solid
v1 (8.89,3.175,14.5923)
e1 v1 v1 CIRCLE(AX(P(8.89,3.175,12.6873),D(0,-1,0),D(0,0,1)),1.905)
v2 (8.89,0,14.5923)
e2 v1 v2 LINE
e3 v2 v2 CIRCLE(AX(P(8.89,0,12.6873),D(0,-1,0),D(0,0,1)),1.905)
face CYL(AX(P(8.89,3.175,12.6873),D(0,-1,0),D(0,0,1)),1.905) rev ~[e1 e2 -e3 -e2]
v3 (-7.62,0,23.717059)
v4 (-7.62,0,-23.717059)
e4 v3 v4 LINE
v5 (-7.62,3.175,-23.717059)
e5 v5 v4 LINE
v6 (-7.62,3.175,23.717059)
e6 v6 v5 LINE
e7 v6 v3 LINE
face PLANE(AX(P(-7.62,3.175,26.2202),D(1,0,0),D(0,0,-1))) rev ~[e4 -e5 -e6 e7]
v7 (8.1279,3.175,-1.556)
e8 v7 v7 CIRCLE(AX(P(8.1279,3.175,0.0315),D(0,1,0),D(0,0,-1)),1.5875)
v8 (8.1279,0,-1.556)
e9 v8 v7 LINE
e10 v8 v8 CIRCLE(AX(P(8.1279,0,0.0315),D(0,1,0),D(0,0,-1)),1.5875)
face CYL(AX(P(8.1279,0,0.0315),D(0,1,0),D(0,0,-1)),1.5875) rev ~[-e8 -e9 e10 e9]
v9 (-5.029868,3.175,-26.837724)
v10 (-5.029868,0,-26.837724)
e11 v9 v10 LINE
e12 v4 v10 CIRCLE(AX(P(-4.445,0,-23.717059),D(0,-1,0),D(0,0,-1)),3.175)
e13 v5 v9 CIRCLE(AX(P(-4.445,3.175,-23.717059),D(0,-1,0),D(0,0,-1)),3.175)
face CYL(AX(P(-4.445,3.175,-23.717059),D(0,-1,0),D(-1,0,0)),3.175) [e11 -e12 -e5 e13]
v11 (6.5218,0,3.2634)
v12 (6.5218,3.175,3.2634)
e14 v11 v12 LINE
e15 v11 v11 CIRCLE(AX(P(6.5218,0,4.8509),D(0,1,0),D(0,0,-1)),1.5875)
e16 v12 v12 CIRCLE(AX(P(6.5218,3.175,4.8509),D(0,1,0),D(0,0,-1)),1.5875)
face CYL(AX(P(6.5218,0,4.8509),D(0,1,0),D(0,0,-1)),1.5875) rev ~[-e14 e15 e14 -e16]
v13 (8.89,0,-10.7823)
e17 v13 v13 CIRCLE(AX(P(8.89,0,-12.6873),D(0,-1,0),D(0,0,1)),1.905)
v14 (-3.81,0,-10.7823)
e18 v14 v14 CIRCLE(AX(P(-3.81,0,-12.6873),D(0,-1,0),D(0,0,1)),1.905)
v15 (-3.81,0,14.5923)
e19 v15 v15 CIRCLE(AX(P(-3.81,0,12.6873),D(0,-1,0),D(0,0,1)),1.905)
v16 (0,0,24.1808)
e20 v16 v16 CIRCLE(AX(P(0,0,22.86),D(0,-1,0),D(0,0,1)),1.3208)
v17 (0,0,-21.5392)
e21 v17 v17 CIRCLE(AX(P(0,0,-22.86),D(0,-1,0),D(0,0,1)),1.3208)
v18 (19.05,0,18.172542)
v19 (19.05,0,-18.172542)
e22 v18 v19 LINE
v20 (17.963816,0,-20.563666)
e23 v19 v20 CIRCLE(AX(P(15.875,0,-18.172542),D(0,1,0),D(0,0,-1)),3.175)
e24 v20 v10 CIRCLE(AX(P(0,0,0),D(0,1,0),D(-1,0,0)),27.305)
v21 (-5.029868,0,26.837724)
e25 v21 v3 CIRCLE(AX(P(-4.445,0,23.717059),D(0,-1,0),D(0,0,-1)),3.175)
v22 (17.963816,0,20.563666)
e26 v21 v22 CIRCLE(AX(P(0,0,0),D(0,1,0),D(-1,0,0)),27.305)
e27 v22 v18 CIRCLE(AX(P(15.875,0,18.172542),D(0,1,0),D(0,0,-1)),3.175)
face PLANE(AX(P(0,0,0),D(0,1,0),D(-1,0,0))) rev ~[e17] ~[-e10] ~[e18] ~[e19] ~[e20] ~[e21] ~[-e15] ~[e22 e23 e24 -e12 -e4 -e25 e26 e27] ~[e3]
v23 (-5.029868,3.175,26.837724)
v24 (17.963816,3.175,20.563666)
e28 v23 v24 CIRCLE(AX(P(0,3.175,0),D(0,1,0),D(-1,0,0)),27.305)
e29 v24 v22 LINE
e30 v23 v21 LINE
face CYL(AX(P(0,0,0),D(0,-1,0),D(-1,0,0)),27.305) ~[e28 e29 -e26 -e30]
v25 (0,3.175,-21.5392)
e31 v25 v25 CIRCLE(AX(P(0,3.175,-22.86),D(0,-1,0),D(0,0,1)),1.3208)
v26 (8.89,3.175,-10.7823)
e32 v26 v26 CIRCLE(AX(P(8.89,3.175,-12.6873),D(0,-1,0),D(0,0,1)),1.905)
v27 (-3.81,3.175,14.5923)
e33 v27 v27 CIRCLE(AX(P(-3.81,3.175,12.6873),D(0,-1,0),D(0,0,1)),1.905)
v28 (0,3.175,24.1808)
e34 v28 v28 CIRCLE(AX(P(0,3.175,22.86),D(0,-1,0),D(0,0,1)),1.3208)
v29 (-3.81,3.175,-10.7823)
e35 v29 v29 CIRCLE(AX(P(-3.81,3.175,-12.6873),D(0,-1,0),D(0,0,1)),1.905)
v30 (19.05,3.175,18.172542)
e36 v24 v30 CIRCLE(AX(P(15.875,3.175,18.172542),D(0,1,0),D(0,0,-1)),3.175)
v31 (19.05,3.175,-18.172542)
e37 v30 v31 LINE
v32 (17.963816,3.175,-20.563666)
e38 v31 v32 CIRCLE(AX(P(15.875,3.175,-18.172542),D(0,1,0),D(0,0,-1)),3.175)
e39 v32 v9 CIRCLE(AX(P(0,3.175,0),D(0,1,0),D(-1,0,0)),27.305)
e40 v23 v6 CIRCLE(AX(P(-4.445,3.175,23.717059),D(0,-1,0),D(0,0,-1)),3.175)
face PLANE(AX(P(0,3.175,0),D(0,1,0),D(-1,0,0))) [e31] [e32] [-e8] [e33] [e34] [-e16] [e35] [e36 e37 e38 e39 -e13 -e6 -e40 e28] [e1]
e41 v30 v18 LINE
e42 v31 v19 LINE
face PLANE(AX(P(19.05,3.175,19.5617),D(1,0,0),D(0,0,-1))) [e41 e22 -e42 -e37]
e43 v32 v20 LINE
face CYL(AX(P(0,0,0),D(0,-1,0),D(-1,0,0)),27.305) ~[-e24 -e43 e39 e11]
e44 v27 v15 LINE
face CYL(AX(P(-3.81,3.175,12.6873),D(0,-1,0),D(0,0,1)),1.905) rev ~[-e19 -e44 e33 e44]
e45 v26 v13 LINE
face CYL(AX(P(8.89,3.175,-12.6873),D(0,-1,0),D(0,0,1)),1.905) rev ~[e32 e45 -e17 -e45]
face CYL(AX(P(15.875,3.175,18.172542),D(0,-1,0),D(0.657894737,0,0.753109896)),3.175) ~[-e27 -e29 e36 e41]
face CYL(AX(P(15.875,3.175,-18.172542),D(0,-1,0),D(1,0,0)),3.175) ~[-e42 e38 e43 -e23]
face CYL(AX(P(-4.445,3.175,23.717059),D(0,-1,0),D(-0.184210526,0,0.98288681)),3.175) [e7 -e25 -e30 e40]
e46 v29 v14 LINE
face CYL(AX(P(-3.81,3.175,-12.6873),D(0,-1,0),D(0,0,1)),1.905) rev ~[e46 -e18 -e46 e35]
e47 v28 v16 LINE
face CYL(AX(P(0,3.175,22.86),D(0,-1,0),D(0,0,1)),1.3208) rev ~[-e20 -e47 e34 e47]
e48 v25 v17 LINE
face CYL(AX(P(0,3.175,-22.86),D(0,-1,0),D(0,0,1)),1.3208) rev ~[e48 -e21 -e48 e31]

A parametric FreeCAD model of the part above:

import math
import FreeCAD as App
import Part
import Sketcher
from FreeCAD import Vector
Q = App.Units.Quantity


def edges_at(feature, points):
    """Names of the edges that pass closest to the given points."""
    edges = feature.Shape.Edges
    near = lambda p: min(range(len(edges)), key=lambda i: edges[i].distToShape(Part.Vertex(*p))[0])
    return sorted({f"Edge{near(p) + 1}" for p in points})

doc = App.newDocument("Part")
body = doc.addObject("PartDesign::Body", "Body")

# Sketch on XZ plane
sketch1 = body.newObject("Sketcher::SketchObject", "Sketch")
sketch1.AttachmentSupport = (doc.getObject("XZ_Plane"), [""])
sketch1.MapMode = "FlatFace"
sketch1.addGeometry(Part.Circle(Vector(0, 0, 0), Vector(0, 0, 1), 27), False)
sketch1.addConstraint([
    Sketcher.Constraint("Coincident", 0, 3, -1, 1),
    Sketcher.Constraint("Diameter", 0, Q("2.15 in")),
])
pad1 = body.newObject("PartDesign::Pad", "Pad")
pad1.Profile = sketch1
pad1.Length = Q("0.125 in")
pad1.Reversed = True

# Sketch on XZ plane
sketch2 = body.newObject("Sketcher::SketchObject", "Sketch001")
sketch2.AttachmentSupport = (doc.getObject("XZ_Plane"), [""])
sketch2.MapMode = "FlatFace"
sketch2.AttachmentOffset = App.Placement(Vector(0, 0, -0.125 * 25.4), App.Rotation())
sketch2.addGeometry([
    Part.ArcOfCircle(Part.Circle(Vector(0, 0, 0), Vector(0, 0, 1), 27), math.radians(-46), math.radians(46)),
    Part.LineSegment(Vector(19, 20, 0), Vector(19, -20, 0)),
    Part.LineSegment(Vector(-8, 26, 0), Vector(-8, -26, 0)),
    Part.ArcOfCircle(Part.Circle(Vector(0, 0, 0), Vector(0, 0, 1), 27), math.radians(106), math.radians(254)),
], False)
sketch2.addConstraint([
    Sketcher.Constraint("Coincident", 0, 1, 1, 2),
    Sketcher.Constraint("Coincident", 1, 1, 0, 2),
    Sketcher.Constraint("Coincident", 2, 1, 3, 1),
    Sketcher.Constraint("Coincident", 3, 2, 2, 2),
    Sketcher.Constraint("Vertical", 1),
    Sketcher.Constraint("Vertical", 2),
    Sketcher.Constraint("Coincident", 0, 3, -1, 1),
    Sketcher.Constraint("Coincident", 3, 3, -1, 1),
    Sketcher.Constraint("Equal", 0, 3),
    Sketcher.Constraint("DistanceX", 2, 1, -1, 1, Q("0.3 in")),
    Sketcher.Constraint("DistanceX", -1, 1, 0, 1, Q("0.75 in")),
    Sketcher.Constraint("Radius", 0, Q("1.075 in")),
])
pocket1 = body.newObject("PartDesign::Pocket", "Pocket")
pocket1.Profile = sketch2
pocket1.Type = "ThroughAll"
pocket1.Reversed = True

# Sketch on XZ plane
sketch3 = body.newObject("Sketcher::SketchObject", "Sketch002")
sketch3.AttachmentSupport = (doc.getObject("XZ_Plane"), [""])
sketch3.MapMode = "FlatFace"
sketch3.AttachmentOffset = App.Placement(Vector(0, 0, -0.125 * 25.4), App.Rotation())
sketch3.addGeometry([
    Part.Circle(Vector(0, -22.9, 0), Vector(0, 0, 1), 1.3),
    Part.Circle(Vector(0, 22.9, 0), Vector(0, 0, 1), 1.3),
], False)
sketch3.addConstraint([
    Sketcher.Constraint("Equal", 0, 1),
    Sketcher.Constraint("Symmetric", 0, 3, 1, 3, -1, 1),
    Sketcher.Constraint("PointOnObject", 0, 3, -2),
    Sketcher.Constraint("Diameter", 0, Q("0.104 in")),
    Sketcher.Constraint("DistanceY", 0, 3, -1, 1, Q("0.9 in")),
])
doc.recompute()
hole = body.newObject("PartDesign::Hole", "Hole")
hole.Profile = sketch3
hole.ThreadType = "None"
hole.Diameter = Q("0.104 in")
hole.DepthType = "ThroughAll"
hole.Reversed = True

# Sketch on XZ plane
sketch4 = body.newObject("Sketcher::SketchObject", "Sketch003")
sketch4.AttachmentSupport = (doc.getObject("XZ_Plane"), [""])
sketch4.MapMode = "FlatFace"
sketch4.AttachmentOffset = App.Placement(Vector(0, 0, -0.125 * 25.4), App.Rotation())
sketch4.addGeometry([
    Part.Circle(Vector(8.9, -12.7, 0), Vector(0, 0, 1), 1.9),
    Part.Circle(Vector(8.9, 12.7, 0), Vector(0, 0, 1), 1.9),
    Part.Circle(Vector(-3.8, 12.7, 0), Vector(0, 0, 1), 1.9),
    Part.Circle(Vector(-3.8, -12.7, 0), Vector(0, 0, 1), 1.9),
], False)
sketch4.addConstraint([
    Sketcher.Constraint("Equal", 0, 1),
    Sketcher.Constraint("Equal", 1, 2),
    Sketcher.Constraint("Equal", 2, 3),
    Sketcher.Constraint("Symmetric", 0, 3, 1, 3, -1),
    Sketcher.Constraint("Symmetric", 2, 3, 3, 3, -1),
    Sketcher.Constraint("Horizontal", 1, 3, 2, 3),
    Sketcher.Constraint("Diameter", 0, Q("0.15 in")),
    Sketcher.Constraint("DistanceX", 2, 3, 1, 3, Q("0.5 in")),
    Sketcher.Constraint("DistanceX", -1, 1, 0, 3, Q("0.35 in")),
    Sketcher.Constraint("DistanceY", 0, 3, 1, 3, Q("0.999 in")),
])
doc.recompute()
hole2 = body.newObject("PartDesign::Hole", "Hole001")
hole2.Profile = sketch4
hole2.ThreadType = "None"
hole2.Diameter = Q("0.15 in")
hole2.DepthType = "Dimension"
hole2.Depth = Q("1 in")
hole2.DrillPoint = "Angled"
hole2.DrillPointAngle = 118
hole2.Reversed = True

# Sketch on XZ plane
sketch5 = body.newObject("Sketcher::SketchObject", "Sketch004")
sketch5.AttachmentSupport = (doc.getObject("XZ_Plane"), [""])
sketch5.MapMode = "FlatFace"
sketch5.addGeometry([
    Part.Circle(Vector(8.1, 0, 0), Vector(0, 0, 1), 1.6),
    Part.Circle(Vector(6.5, 4.9, 0), Vector(0, 0, 1), 1.6),
], False)
sketch5.addConstraint([
    Sketcher.Constraint("Equal", 0, 1),
    Sketcher.Constraint("Diameter", 0, Q("0.125 in")),
    Sketcher.Constraint("DistanceX", -1, 1, 0, 3, Q("0.32 in")),
    Sketcher.Constraint("DistanceY", -1, 1, 0, 3, Q("0.0315 mm")),
    Sketcher.Constraint("DistanceX", -1, 1, 1, 3, Q("6.5218 mm")),
    Sketcher.Constraint("DistanceY", -1, 1, 1, 3, Q("4.851 mm")),
])
doc.recompute()
hole3 = body.newObject("PartDesign::Hole", "Hole002")
hole3.Profile = sketch5
hole3.ThreadType = "None"
hole3.Diameter = Q("0.125 in")
hole3.DepthType = "ThroughAll"
doc.recompute()

fillet = body.newObject("PartDesign::Fillet", "Fillet")
fillet.Base = (hole3, edges_at(hole3, [
    (-7.62, 1.587, 26.22),
    (-7.62, 1.587, -26.22),
    (19.05, 1.587, 19.562),
    (19.05, 1.587, -19.562),
]))
fillet.Radius = Q("0.125 in")

doc.recompute()
